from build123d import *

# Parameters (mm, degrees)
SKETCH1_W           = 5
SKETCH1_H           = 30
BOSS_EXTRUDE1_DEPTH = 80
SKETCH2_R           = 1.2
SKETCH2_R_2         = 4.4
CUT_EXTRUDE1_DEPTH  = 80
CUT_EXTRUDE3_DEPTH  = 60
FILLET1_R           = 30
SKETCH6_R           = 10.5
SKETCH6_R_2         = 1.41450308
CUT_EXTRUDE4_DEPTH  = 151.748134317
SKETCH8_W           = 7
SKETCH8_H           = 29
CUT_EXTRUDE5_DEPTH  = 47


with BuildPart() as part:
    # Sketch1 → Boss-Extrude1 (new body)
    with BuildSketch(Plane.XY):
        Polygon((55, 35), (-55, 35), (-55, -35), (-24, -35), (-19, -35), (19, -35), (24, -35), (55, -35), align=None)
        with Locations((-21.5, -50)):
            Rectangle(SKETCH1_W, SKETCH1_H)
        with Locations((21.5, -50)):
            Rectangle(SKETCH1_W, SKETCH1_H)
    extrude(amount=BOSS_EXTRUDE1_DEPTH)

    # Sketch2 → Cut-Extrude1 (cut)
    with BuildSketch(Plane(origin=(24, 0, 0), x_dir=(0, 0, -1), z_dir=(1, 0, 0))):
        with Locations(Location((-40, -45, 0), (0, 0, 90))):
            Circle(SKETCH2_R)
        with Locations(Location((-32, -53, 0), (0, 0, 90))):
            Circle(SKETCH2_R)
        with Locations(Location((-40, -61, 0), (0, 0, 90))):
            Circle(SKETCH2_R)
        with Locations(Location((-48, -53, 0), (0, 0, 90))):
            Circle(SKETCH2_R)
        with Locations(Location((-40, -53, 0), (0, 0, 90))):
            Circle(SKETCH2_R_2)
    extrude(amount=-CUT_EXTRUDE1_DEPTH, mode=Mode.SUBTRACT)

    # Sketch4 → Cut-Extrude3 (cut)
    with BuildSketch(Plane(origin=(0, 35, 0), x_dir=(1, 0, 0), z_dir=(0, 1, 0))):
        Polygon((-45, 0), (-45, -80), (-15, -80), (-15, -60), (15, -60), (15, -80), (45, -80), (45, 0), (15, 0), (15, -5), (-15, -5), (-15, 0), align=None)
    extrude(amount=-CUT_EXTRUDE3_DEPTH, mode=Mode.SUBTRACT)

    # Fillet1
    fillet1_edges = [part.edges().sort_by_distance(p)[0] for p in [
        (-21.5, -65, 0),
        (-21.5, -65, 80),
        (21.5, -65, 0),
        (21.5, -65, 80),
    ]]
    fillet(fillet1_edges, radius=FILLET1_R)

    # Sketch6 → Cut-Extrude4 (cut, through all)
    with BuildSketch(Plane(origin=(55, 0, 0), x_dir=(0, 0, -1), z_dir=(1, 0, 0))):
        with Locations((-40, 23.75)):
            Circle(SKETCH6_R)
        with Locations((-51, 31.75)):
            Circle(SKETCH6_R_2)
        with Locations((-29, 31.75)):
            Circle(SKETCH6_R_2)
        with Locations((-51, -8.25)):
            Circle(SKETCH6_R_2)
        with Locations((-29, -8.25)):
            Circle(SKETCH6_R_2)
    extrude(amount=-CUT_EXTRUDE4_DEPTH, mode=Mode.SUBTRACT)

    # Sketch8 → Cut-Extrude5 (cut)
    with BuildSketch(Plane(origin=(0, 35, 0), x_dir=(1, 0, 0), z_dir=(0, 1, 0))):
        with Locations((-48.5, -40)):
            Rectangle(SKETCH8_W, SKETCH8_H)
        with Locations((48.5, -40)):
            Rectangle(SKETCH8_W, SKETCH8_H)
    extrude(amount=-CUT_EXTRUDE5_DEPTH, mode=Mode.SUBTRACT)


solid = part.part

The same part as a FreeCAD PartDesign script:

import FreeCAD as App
import Part
import Sketcher
from FreeCAD import Vector
Q = App.Units.Quantity


def edges_at(feature, points):
    """Names of the edges that pass closest to the given points."""
    edges = feature.Shape.Edges
    near = lambda p: min(range(len(edges)), key=lambda i: edges[i].distToShape(Part.Vertex(*p))[0])
    return sorted({f"Edge{near(p) + 1}" for p in points})

doc = App.newDocument("Part")
body = doc.addObject("PartDesign::Body", "Body")

# Sketch on XY plane
sketch1 = body.newObject("Sketcher::SketchObject", "Sketch")
sketch1.AttachmentSupport = (doc.getObject("XY_Plane"), [""])
sketch1.MapMode = "FlatFace"
sketch1.addGeometry([
    Part.LineSegment(Vector(55, 35, 0), Vector(-55, 35, 0)),  # 0
    Part.LineSegment(Vector(-55, 35, 0), Vector(-55, -35, 0)),  # 1
    Part.LineSegment(Vector(-55, -35, 0), Vector(-24, -35, 0)),  # 2
    Part.LineSegment(Vector(-24, -35, 0), Vector(-24, -65, 0)),  # 3
    Part.LineSegment(Vector(-24, -65, 0), Vector(-19, -65, 0)),  # 4
    Part.LineSegment(Vector(-19, -65, 0), Vector(-19, -35, 0)),  # 5
    Part.LineSegment(Vector(-19, -35, 0), Vector(19, -35, 0)),  # 6
    Part.LineSegment(Vector(19, -35, 0), Vector(19, -65, 0)),  # 7
    Part.LineSegment(Vector(19, -65, 0), Vector(24, -65, 0)),  # 8
    Part.LineSegment(Vector(24, -65, 0), Vector(24, -35, 0)),  # 9
    Part.LineSegment(Vector(24, -35, 0), Vector(55, -35, 0)),  # 10
    Part.LineSegment(Vector(55, -35, 0), Vector(55, 35, 0)),  # 11
], False)
sketch1.addConstraint([
    Sketcher.Constraint("Coincident", 0, 2, 1, 1),
    Sketcher.Constraint("Coincident", 1, 2, 2, 1),
    Sketcher.Constraint("Coincident", 2, 2, 3, 1),
    Sketcher.Constraint("Coincident", 3, 2, 4, 1),
    Sketcher.Constraint("Coincident", 4, 2, 5, 1),
    Sketcher.Constraint("Coincident", 5, 2, 6, 1),
    Sketcher.Constraint("Coincident", 6, 2, 7, 1),
    Sketcher.Constraint("Coincident", 7, 2, 8, 1),
    Sketcher.Constraint("Coincident", 8, 2, 9, 1),
    Sketcher.Constraint("Coincident", 9, 2, 10, 1),
    Sketcher.Constraint("Coincident", 10, 2, 11, 1),
    Sketcher.Constraint("Coincident", 11, 2, 0, 1),
    Sketcher.Constraint("Horizontal", 0),
    Sketcher.Constraint("Vertical", 1),
    Sketcher.Constraint("Horizontal", 2),
    Sketcher.Constraint("Vertical", 3),
    Sketcher.Constraint("Horizontal", 4),
    Sketcher.Constraint("Vertical", 5),
    Sketcher.Constraint("Horizontal", 6),
    Sketcher.Constraint("Vertical", 7),
    Sketcher.Constraint("Horizontal", 8),
    Sketcher.Constraint("Vertical", 9),
    Sketcher.Constraint("Horizontal", 10),
    Sketcher.Constraint("Vertical", 11),
    Sketcher.Constraint("Symmetric", 0, 2, 10, 2, -1, 1),
    Sketcher.Constraint("Symmetric", 4, 2, 7, 2, -2),
    Sketcher.Constraint("Symmetric", 2, 2, 9, 2, -2),
    Sketcher.Constraint("Horizontal", 2, 2, 5, 2),
    Sketcher.Constraint("DistanceX", 0, 2, 0, 1, Q("110 mm")),
    Sketcher.Constraint("DistanceX", 2, 1, 2, 2, Q("31 mm")),
    Sketcher.Constraint("DistanceX", 4, 1, 4, 2, Q("5 mm")),
    Sketcher.Constraint("DistanceY", 1, 2, 1, 1, Q("70 mm")),
    Sketcher.Constraint("DistanceY", 3, 2, 3, 1, Q("30 mm")),
])
pad1 = body.newObject("PartDesign::Pad", "Pad")
pad1.Profile = sketch1
pad1.Length = 80

# Sketch on YZ plane
sketch2 = body.newObject("Sketcher::SketchObject", "Sketch001")
sketch2.AttachmentSupport = (doc.getObject("YZ_Plane"), [""])
sketch2.MapMode = "FlatFace"
sketch2.AttachmentOffset = App.Placement(Vector(0, 0, 24), App.Rotation())
sketch2.addGeometry([
    Part.Circle(Vector(-45, 40, 0), Vector(0, 0, 1), 1.2),  # 0
    Part.Circle(Vector(-53, 32, 0), Vector(0, 0, 1), 1.2),  # 1
    Part.Circle(Vector(-61, 40, 0), Vector(0, 0, 1), 1.2),  # 2
    Part.Circle(Vector(-53, 48, 0), Vector(0, 0, 1), 1.2),  # 3
    Part.Circle(Vector(-53, 40, 0), Vector(0, 0, 1), 4.4),  # 4
], False)
sketch2.addConstraint([
    Sketcher.Constraint("Equal", 0, 1),
    Sketcher.Constraint("Equal", 1, 2),
    Sketcher.Constraint("Equal", 2, 3),
    Sketcher.Constraint("Horizontal", 0, 3, 2, 3),
    Sketcher.Constraint("Horizontal", 2, 3, 4, 3),
    Sketcher.Constraint("Vertical", 1, 3, 3, 3),
    Sketcher.Constraint("Vertical", 3, 3, 4, 3),
    Sketcher.Constraint("Diameter", 0, Q("2.4 mm")),
    Sketcher.Constraint("Diameter", 4, Q("8.8 mm")),
    Sketcher.Constraint("DistanceX", 0, 3, -1, 1, Q("45 mm")),
    Sketcher.Constraint("DistanceY", -1, 1, 0, 3, Q("40 mm")),
    Sketcher.Constraint("DistanceX", 1, 3, -1, 1, Q("53 mm")),
    Sketcher.Constraint("DistanceY", -1, 1, 1, 3, Q("32 mm")),
    Sketcher.Constraint("DistanceX", 2, 3, -1, 1, Q("61 mm")),
    Sketcher.Constraint("DistanceY", -1, 1, 3, 3, Q("48 mm")),
])
pocket1 = body.newObject("PartDesign::Pocket", "Pocket")
pocket1.Profile = sketch2
pocket1.Length = 80

# Sketch on XZ plane
sketch3 = body.newObject("Sketcher::SketchObject", "Sketch002")
sketch3.AttachmentSupport = (doc.getObject("XZ_Plane"), [""])
sketch3.MapMode = "FlatFace"
sketch3.AttachmentOffset = App.Placement(Vector(0, 0, -35), App.Rotation())
sketch3.addGeometry([
    Part.LineSegment(Vector(-45, 0, 0), Vector(-45, 80, 0)),  # 0
    Part.LineSegment(Vector(-45, 80, 0), Vector(-15, 80, 0)),  # 1
    Part.LineSegment(Vector(-15, 80, 0), Vector(-15, 60, 0)),  # 2
    Part.LineSegment(Vector(-15, 60, 0), Vector(15, 60, 0)),  # 3
    Part.LineSegment(Vector(15, 60, 0), Vector(15, 80, 0)),  # 4
    Part.LineSegment(Vector(15, 80, 0), Vector(45, 80, 0)),  # 5
    Part.LineSegment(Vector(45, 80, 0), Vector(45, 0, 0)),  # 6
    Part.LineSegment(Vector(45, 0, 0), Vector(15, 0, 0)),  # 7
    Part.LineSegment(Vector(15, 0, 0), Vector(15, 5, 0)),  # 8
    Part.LineSegment(Vector(15, 5, 0), Vector(-15, 5, 0)),  # 9
    Part.LineSegment(Vector(-15, 5, 0), Vector(-15, 0, 0)),  # 10
    Part.LineSegment(Vector(-15, 0, 0), Vector(-45, 0, 0)),  # 11
], False)
sketch3.addConstraint([
    Sketcher.Constraint("Coincident", 0, 2, 1, 1),
    Sketcher.Constraint("Coincident", 1, 2, 2, 1),
    Sketcher.Constraint("Coincident", 2, 2, 3, 1),
    Sketcher.Constraint("Coincident", 3, 2, 4, 1),
    Sketcher.Constraint("Coincident", 4, 2, 5, 1),
    Sketcher.Constraint("Coincident", 5, 2, 6, 1),
    Sketcher.Constraint("Coincident", 6, 2, 7, 1),
    Sketcher.Constraint("Coincident", 7, 2, 8, 1),
    Sketcher.Constraint("Coincident", 8, 2, 9, 1),
    Sketcher.Constraint("Coincident", 9, 2, 10, 1),
    Sketcher.Constraint("Coincident", 10, 2, 11, 1),
    Sketcher.Constraint("Coincident", 11, 2, 0, 1),
    Sketcher.Constraint("Vertical", 0),
    Sketcher.Constraint("Horizontal", 1),
    Sketcher.Constraint("Vertical", 2),
    Sketcher.Constraint("Horizontal", 3),
    Sketcher.Constraint("Vertical", 4),
    Sketcher.Constraint("Horizontal", 5),
    Sketcher.Constraint("Vertical", 6),
    Sketcher.Constraint("Horizontal", 7),
    Sketcher.Constraint("Vertical", 8),
    Sketcher.Constraint("Horizontal", 9),
    Sketcher.Constraint("Vertical", 10),
    Sketcher.Constraint("Horizontal", 11),
    Sketcher.Constraint("Symmetric", 7, 2, 10, 2, -1, 1),
    Sketcher.Constraint("Symmetric", 1, 2, 4, 2, -2),
    Sketcher.Constraint("Symmetric", 6, 2, 11, 2, -2),
    Sketcher.Constraint("Vertical", 4, 2, 7, 2),
    Sketcher.Constraint("Equal", 1, 3),
    Sketcher.Constraint("DistanceX", 1, 1, 1, 2, Q("30 mm")),
    Sketcher.Constraint("DistanceY", 0, 1, 0, 2, Q("80 mm")),
    Sketcher.Constraint("DistanceY", 2, 2, 2, 1, Q("20 mm")),
    Sketcher.Constraint("DistanceY", 8, 1, 8, 2, Q("5 mm")),
])
pocket2 = body.newObject("PartDesign::Pocket", "Pocket001")
pocket2.Profile = sketch3
pocket2.Length = 60
pocket2.Reversed = True
doc.recompute()

fillet = body.newObject("PartDesign::Fillet", "Fillet")
fillet.Base = (pocket2, edges_at(pocket2, [
    (-21.5, -65, 0),
    (-21.5, -65, 80),
    (21.5, -65, 0),
    (21.5, -65, 80),
]))
fillet.Radius = 30

# Sketch on YZ plane
sketch4 = body.newObject("Sketcher::SketchObject", "Sketch003")
sketch4.AttachmentSupport = (doc.getObject("YZ_Plane"), [""])
sketch4.MapMode = "FlatFace"
sketch4.AttachmentOffset = App.Placement(Vector(0, 0, 55), App.Rotation())
sketch4.addGeometry([
    Part.Circle(Vector(23.8, 40, 0), Vector(0, 0, 1), 10.5),  # 0
    Part.Circle(Vector(31.8, 51, 0), Vector(0, 0, 1), 1.4),  # 1
    Part.Circle(Vector(31.8, 29, 0), Vector(0, 0, 1), 1.4),  # 2
    Part.Circle(Vector(-8.2, 51, 0), Vector(0, 0, 1), 1.4),  # 3
    Part.Circle(Vector(-8.2, 29, 0), Vector(0, 0, 1), 1.4),  # 4
], False)
sketch4.addConstraint([
    Sketcher.Constraint("Equal", 1, 2),
    Sketcher.Constraint("Equal", 2, 3),
    Sketcher.Constraint("Equal", 3, 4),
    Sketcher.Constraint("Horizontal", 1, 3, 3, 3),
    Sketcher.Constraint("Horizontal", 2, 3, 4, 3),
    Sketcher.Constraint("Vertical", 1, 3, 2, 3),
    Sketcher.Constraint("Vertical", 3, 3, 4, 3),
    Sketcher.Constraint("Diameter", 0, Q("21 mm")),
    Sketcher.Constraint("DistanceY", -1, 1, 0, 3, Q("40 mm")),
    Sketcher.Constraint("DistanceY", -1, 1, 1, 3, Q("51 mm")),
    Sketcher.Constraint("DistanceY", -1, 1, 2, 3, Q("29 mm")),
    Sketcher.Constraint("DistanceX", 0, 3, 1, 3, Q("8 mm")),
    Sketcher.Constraint("DistanceX", 3, 3, 0, 3, Q("32 mm")),
    Sketcher.Constraint("DistanceX", -1, 1, 0, 3, Q("23.75 mm")),
    Sketcher.Constraint("Diameter", 1, Q("2.829006 mm")),
])
pocket3 = body.newObject("PartDesign::Pocket", "Pocket002")
pocket3.Profile = sketch4
pocket3.Type = "ThroughAll"

# Sketch on XZ plane
sketch5 = body.newObject("Sketcher::SketchObject", "Sketch004")
sketch5.AttachmentSupport = (doc.getObject("XZ_Plane"), [""])
sketch5.MapMode = "FlatFace"
sketch5.AttachmentOffset = App.Placement(Vector(0, 0, -35), App.Rotation())
sketch5.addGeometry([
    Part.LineSegment(Vector(-52, 26, 0), Vector(-52, 54, 0)),  # 0
    Part.LineSegment(Vector(-52, 54, 0), Vector(-45, 54, 0)),  # 1
    Part.LineSegment(Vector(-45, 54, 0), Vector(-45, 26, 0)),  # 2
    Part.LineSegment(Vector(-45, 26, 0), Vector(-52, 26, 0)),  # 3
    Part.LineSegment(Vector(45, 26, 0), Vector(45, 54, 0)),  # 4
    Part.LineSegment(Vector(45, 54, 0), Vector(52, 54, 0)),  # 5
    Part.LineSegment(Vector(52, 54, 0), Vector(52, 26, 0)),  # 6
    Part.LineSegment(Vector(52, 26, 0), Vector(45, 26, 0)),  # 7
], False)
sketch5.addConstraint([
    Sketcher.Constraint("Coincident", 0, 2, 1, 1),
    Sketcher.Constraint("Coincident", 1, 2, 2, 1),
    Sketcher.Constraint("Coincident", 2, 2, 3, 1),
    Sketcher.Constraint("Coincident", 3, 2, 0, 1),
    Sketcher.Constraint("Coincident", 4, 2, 5, 1),
    Sketcher.Constraint("Coincident", 5, 2, 6, 1),
    Sketcher.Constraint("Coincident", 6, 2, 7, 1),
    Sketcher.Constraint("Coincident", 7, 2, 4, 1),
    Sketcher.Constraint("Vertical", 0),
    Sketcher.Constraint("Horizontal", 1),
    Sketcher.Constraint("Vertical", 2),
    Sketcher.Constraint("Horizontal", 3),
    Sketcher.Constraint("Vertical", 4),
    Sketcher.Constraint("Horizontal", 5),
    Sketcher.Constraint("Vertical", 6),
    Sketcher.Constraint("Horizontal", 7),
    Sketcher.Constraint("Symmetric", 1, 2, 4, 2, -2),
    Sketcher.Constraint("Symmetric", 3, 2, 6, 2, -2),
    Sketcher.Constraint("DistanceX", 1, 1, 1, 2, Q("7 mm")),
    Sketcher.Constraint("DistanceY", 0, 1, 0, 2, Q("29 mm")),
    Sketcher.Constraint("DistanceX", 0, 2, -1, 1, Q("52 mm")),
    Sketcher.Constraint("DistanceY", -1, 1, 0, 2, Q("54.5 mm")),
])
pocket4 = body.newObject("PartDesign::Pocket", "Pocket003")
pocket4.Profile = sketch5
pocket4.Length = 47
pocket4.Reversed = True

doc.recompute()
